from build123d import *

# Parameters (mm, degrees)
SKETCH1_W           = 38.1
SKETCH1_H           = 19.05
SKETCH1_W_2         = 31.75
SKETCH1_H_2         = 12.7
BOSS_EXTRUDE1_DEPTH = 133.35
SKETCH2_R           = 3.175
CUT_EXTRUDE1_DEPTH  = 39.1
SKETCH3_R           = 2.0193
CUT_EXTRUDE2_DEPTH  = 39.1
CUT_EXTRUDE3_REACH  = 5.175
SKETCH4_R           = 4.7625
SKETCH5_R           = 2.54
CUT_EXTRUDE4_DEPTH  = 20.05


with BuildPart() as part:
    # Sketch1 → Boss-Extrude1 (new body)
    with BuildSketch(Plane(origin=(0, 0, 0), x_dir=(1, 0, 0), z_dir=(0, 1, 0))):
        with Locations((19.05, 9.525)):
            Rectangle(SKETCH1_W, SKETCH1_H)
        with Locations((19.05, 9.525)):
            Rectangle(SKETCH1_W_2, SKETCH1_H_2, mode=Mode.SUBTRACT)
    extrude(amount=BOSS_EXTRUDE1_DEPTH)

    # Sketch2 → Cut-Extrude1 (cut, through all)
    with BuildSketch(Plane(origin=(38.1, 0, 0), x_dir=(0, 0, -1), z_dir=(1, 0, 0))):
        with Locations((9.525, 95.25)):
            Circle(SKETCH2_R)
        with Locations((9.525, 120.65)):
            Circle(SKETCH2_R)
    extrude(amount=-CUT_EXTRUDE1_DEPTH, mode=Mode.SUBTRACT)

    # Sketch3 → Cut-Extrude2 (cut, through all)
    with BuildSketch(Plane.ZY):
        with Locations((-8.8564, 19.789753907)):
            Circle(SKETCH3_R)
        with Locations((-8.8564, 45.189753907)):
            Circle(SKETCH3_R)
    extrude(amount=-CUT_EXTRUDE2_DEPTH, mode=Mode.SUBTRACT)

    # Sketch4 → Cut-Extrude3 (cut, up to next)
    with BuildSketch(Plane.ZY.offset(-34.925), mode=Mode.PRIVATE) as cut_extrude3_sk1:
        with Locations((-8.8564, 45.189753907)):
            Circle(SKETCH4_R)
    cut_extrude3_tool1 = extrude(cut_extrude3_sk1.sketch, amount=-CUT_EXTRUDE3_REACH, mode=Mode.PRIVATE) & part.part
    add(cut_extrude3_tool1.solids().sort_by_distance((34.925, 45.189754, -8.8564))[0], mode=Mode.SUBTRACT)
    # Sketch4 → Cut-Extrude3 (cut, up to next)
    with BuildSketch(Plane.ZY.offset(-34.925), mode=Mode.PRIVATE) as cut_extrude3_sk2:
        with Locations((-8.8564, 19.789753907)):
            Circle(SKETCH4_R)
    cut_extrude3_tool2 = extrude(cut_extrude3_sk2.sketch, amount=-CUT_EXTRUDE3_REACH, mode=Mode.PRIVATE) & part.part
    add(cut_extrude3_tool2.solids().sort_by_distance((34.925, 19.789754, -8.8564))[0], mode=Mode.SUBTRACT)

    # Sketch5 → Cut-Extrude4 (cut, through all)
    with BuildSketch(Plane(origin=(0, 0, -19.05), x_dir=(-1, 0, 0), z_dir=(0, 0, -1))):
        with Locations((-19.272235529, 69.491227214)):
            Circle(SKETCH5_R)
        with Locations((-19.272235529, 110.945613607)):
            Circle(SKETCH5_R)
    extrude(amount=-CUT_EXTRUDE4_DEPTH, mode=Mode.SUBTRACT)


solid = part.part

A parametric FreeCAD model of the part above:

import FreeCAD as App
import Part
import Sketcher
from FreeCAD import Vector
Q = App.Units.Quantity


def add_polygon(sketch, points):
    """Adds a closed chain of lines whose ends are joined by coincident constraints."""
    first, n = sketch.GeometryCount, len(points)
    for a, b in zip(points, points[1:] + points[:1]):
        sketch.addGeometry(Part.LineSegment(App.Vector(*a, 0), App.Vector(*b, 0)), False)
    for i in range(n):
        sketch.addConstraint(Sketcher.Constraint("Coincident", first + i, 2, first + (i + 1) % n, 1))

doc = App.newDocument("Part")
body = doc.addObject("PartDesign::Body", "Body")

sketch1 = body.newObject("Sketcher::SketchObject", "Sketch")
sketch1.AttachmentSupport = (doc.getObject("XZ_Plane"), [""])
sketch1.MapMode = "FlatFace"
add_polygon(sketch1, [(0, -19), (0, 0), (38, 0), (38, -19)])
add_polygon(sketch1, [(35, -3), (3, -3), (3, -16), (35, -16)])
sketch1.addConstraint([
    Sketcher.Constraint("Vertical", 0),
    Sketcher.Constraint("Horizontal", 1),
    Sketcher.Constraint("Vertical", 2),
    Sketcher.Constraint("Horizontal", 3),
    Sketcher.Constraint("Horizontal", 4),
    Sketcher.Constraint("Vertical", 5),
    Sketcher.Constraint("Horizontal", 6),
    Sketcher.Constraint("Vertical", 7),
    Sketcher.Constraint("Coincident", 0, 2, -1, 1),
    Sketcher.Constraint("DistanceX", 1, 1, 1, 2, Q("1.5 in")),
    Sketcher.Constraint("DistanceY", 5, 2, 5, 1, Q("0.5 in")),
    Sketcher.Constraint("DistanceX", 4, 2, 4, 1, Q("1.25 in")),
    Sketcher.Constraint("DistanceY", 0, 1, 0, 2, Q("0.75 in")),
    Sketcher.Constraint("DistanceX", -1, 1, 4, 2, Q("0.125 in")),
    Sketcher.Constraint("DistanceY", 4, 2, -1, 1, Q("0.125 in")),
])
pad1 = body.newObject("PartDesign::Pad", "Pad")
pad1.Profile = sketch1
pad1.Length = Q("5.25 in")
pad1.Reversed = True

sketch2 = body.newObject("Sketcher::SketchObject", "Sketch001")
sketch2.AttachmentSupport = (doc.getObject("YZ_Plane"), [""])
sketch2.MapMode = "FlatFace"
sketch2.AttachmentOffset = App.Placement(Vector(0, 0, 1.5 * 25.4), App.Rotation())
sketch2.addGeometry([
    Part.Circle(Vector(95.2, -9.5, 0), Vector(0, 0, 1), 3.2),
    Part.Circle(Vector(120.7, -9.5, 0), Vector(0, 0, 1), 3.2),
], False)
sketch2.addConstraint([
    Sketcher.Constraint("Equal", 0, 1),
    Sketcher.Constraint("Horizontal", 0, 3, 1, 3),
    Sketcher.Constraint("Diameter", 0, Q("0.25 in")),
    Sketcher.Constraint("DistanceX", 0, 3, 1, 3, Q("1 in")),
    Sketcher.Constraint("DistanceX", -1, 1, 0, 3, Q("3.75 in")),
    Sketcher.Constraint("DistanceY", 0, 3, -1, 1, Q("0.375 in")),
])
pocket1 = body.newObject("PartDesign::Pocket", "Pocket")
pocket1.Profile = sketch2
pocket1.Type = "ThroughAll"

sketch3 = body.newObject("Sketcher::SketchObject", "Sketch002")
sketch3.AttachmentSupport = (doc.getObject("YZ_Plane"), [""])
sketch3.MapMode = "FlatFace"
sketch3.addGeometry([
    Part.Circle(Vector(19.8, -8.9, 0), Vector(0, 0, 1), 2),
    Part.Circle(Vector(45.2, -8.9, 0), Vector(0, 0, 1), 2),
], False)
sketch3.addConstraint([
    Sketcher.Constraint("Equal", 0, 1),
    Sketcher.Constraint("Horizontal", 0, 3, 1, 3),
    Sketcher.Constraint("Diameter", 0, Q("0.159 in")),
    Sketcher.Constraint("DistanceX", 0, 3, 1, 3, Q("1 in")),
    Sketcher.Constraint("DistanceY", 0, 3, -1, 1, Q("8.8564 mm")),
    Sketcher.Constraint("DistanceX", -1, 1, 0, 3, Q("19.789754 mm")),
])
pocket2 = body.newObject("PartDesign::Pocket", "Pocket001")
pocket2.Profile = sketch3
pocket2.Type = "ThroughAll"
pocket2.Reversed = True

sketch4 = body.newObject("Sketcher::SketchObject", "Sketch003")
sketch4.AttachmentSupport = (doc.getObject("YZ_Plane"), [""])
sketch4.MapMode = "FlatFace"
sketch4.AttachmentOffset = App.Placement(Vector(0, 0, 1.375 * 25.4), App.Rotation())
sketch4.addGeometry(Part.Circle(Vector(45.2, -8.9, 0), Vector(0, 0, 1), 4.8), False)
sketch4.addConstraint([
    Sketcher.Constraint("Diameter", 0, Q("0.375 in")),
    Sketcher.Constraint("DistanceY", 0, 3, -1, 1, Q("8.8564 mm")),
    Sketcher.Constraint("DistanceX", -1, 1, 0, 3, Q("45.189754 mm")),
])
pocket3 = body.newObject("PartDesign::Pocket", "Pocket002")
pocket3.Profile = sketch4
pocket3.Length = Q("0.125 in")
pocket3.Reversed = True

sketch5 = body.newObject("Sketcher::SketchObject", "Sketch004")
sketch5.AttachmentSupport = (doc.getObject("YZ_Plane"), [""])
sketch5.MapMode = "FlatFace"
sketch5.AttachmentOffset = App.Placement(Vector(0, 0, 1.375 * 25.4), App.Rotation())
sketch5.addGeometry(Part.Circle(Vector(19.8, -8.9, 0), Vector(0, 0, 1), 4.8), False)
sketch5.addConstraint([
    Sketcher.Constraint("Diameter", 0, Q("0.375 in")),
    Sketcher.Constraint("DistanceY", 0, 3, -1, 1, Q("8.8564 mm")),
    Sketcher.Constraint("DistanceX", -1, 1, 0, 3, Q("19.789754 mm")),
])
pocket4 = body.newObject("PartDesign::Pocket", "Pocket003")
pocket4.Profile = sketch5
pocket4.Length = Q("0.125 in")
pocket4.Reversed = True

sketch6 = body.newObject("Sketcher::SketchObject", "Sketch005")
sketch6.AttachmentSupport = (doc.getObject("XY_Plane"), [""])
sketch6.MapMode = "FlatFace"
sketch6.AttachmentOffset = App.Placement(Vector(0, 0, -0.75 * 25.4), App.Rotation())
sketch6.addGeometry([
    Part.Circle(Vector(19.3, 69.5, 0), Vector(0, 0, 1), 2.5),
    Part.Circle(Vector(19.3, 110.9, 0), Vector(0, 0, 1), 2.5),
], False)
sketch6.addConstraint([
    Sketcher.Constraint("Equal", 0, 1),
    Sketcher.Constraint("Vertical", 0, 3, 1, 3),
    Sketcher.Constraint("Diameter", 0, Q("0.2 in")),
    Sketcher.Constraint("DistanceX", -1, 1, 0, 3, Q("19.272236 mm")),
    Sketcher.Constraint("DistanceY", -1, 1, 0, 3, Q("69.491227 mm")),
    Sketcher.Constraint("DistanceY", -1, 1, 1, 3, Q("110.945614 mm")),
])
pocket5 = body.newObject("PartDesign::Pocket", "Pocket004")
pocket5.Profile = sketch6
pocket5.Type = "ThroughAll"
pocket5.Reversed = True

doc.recompute()
